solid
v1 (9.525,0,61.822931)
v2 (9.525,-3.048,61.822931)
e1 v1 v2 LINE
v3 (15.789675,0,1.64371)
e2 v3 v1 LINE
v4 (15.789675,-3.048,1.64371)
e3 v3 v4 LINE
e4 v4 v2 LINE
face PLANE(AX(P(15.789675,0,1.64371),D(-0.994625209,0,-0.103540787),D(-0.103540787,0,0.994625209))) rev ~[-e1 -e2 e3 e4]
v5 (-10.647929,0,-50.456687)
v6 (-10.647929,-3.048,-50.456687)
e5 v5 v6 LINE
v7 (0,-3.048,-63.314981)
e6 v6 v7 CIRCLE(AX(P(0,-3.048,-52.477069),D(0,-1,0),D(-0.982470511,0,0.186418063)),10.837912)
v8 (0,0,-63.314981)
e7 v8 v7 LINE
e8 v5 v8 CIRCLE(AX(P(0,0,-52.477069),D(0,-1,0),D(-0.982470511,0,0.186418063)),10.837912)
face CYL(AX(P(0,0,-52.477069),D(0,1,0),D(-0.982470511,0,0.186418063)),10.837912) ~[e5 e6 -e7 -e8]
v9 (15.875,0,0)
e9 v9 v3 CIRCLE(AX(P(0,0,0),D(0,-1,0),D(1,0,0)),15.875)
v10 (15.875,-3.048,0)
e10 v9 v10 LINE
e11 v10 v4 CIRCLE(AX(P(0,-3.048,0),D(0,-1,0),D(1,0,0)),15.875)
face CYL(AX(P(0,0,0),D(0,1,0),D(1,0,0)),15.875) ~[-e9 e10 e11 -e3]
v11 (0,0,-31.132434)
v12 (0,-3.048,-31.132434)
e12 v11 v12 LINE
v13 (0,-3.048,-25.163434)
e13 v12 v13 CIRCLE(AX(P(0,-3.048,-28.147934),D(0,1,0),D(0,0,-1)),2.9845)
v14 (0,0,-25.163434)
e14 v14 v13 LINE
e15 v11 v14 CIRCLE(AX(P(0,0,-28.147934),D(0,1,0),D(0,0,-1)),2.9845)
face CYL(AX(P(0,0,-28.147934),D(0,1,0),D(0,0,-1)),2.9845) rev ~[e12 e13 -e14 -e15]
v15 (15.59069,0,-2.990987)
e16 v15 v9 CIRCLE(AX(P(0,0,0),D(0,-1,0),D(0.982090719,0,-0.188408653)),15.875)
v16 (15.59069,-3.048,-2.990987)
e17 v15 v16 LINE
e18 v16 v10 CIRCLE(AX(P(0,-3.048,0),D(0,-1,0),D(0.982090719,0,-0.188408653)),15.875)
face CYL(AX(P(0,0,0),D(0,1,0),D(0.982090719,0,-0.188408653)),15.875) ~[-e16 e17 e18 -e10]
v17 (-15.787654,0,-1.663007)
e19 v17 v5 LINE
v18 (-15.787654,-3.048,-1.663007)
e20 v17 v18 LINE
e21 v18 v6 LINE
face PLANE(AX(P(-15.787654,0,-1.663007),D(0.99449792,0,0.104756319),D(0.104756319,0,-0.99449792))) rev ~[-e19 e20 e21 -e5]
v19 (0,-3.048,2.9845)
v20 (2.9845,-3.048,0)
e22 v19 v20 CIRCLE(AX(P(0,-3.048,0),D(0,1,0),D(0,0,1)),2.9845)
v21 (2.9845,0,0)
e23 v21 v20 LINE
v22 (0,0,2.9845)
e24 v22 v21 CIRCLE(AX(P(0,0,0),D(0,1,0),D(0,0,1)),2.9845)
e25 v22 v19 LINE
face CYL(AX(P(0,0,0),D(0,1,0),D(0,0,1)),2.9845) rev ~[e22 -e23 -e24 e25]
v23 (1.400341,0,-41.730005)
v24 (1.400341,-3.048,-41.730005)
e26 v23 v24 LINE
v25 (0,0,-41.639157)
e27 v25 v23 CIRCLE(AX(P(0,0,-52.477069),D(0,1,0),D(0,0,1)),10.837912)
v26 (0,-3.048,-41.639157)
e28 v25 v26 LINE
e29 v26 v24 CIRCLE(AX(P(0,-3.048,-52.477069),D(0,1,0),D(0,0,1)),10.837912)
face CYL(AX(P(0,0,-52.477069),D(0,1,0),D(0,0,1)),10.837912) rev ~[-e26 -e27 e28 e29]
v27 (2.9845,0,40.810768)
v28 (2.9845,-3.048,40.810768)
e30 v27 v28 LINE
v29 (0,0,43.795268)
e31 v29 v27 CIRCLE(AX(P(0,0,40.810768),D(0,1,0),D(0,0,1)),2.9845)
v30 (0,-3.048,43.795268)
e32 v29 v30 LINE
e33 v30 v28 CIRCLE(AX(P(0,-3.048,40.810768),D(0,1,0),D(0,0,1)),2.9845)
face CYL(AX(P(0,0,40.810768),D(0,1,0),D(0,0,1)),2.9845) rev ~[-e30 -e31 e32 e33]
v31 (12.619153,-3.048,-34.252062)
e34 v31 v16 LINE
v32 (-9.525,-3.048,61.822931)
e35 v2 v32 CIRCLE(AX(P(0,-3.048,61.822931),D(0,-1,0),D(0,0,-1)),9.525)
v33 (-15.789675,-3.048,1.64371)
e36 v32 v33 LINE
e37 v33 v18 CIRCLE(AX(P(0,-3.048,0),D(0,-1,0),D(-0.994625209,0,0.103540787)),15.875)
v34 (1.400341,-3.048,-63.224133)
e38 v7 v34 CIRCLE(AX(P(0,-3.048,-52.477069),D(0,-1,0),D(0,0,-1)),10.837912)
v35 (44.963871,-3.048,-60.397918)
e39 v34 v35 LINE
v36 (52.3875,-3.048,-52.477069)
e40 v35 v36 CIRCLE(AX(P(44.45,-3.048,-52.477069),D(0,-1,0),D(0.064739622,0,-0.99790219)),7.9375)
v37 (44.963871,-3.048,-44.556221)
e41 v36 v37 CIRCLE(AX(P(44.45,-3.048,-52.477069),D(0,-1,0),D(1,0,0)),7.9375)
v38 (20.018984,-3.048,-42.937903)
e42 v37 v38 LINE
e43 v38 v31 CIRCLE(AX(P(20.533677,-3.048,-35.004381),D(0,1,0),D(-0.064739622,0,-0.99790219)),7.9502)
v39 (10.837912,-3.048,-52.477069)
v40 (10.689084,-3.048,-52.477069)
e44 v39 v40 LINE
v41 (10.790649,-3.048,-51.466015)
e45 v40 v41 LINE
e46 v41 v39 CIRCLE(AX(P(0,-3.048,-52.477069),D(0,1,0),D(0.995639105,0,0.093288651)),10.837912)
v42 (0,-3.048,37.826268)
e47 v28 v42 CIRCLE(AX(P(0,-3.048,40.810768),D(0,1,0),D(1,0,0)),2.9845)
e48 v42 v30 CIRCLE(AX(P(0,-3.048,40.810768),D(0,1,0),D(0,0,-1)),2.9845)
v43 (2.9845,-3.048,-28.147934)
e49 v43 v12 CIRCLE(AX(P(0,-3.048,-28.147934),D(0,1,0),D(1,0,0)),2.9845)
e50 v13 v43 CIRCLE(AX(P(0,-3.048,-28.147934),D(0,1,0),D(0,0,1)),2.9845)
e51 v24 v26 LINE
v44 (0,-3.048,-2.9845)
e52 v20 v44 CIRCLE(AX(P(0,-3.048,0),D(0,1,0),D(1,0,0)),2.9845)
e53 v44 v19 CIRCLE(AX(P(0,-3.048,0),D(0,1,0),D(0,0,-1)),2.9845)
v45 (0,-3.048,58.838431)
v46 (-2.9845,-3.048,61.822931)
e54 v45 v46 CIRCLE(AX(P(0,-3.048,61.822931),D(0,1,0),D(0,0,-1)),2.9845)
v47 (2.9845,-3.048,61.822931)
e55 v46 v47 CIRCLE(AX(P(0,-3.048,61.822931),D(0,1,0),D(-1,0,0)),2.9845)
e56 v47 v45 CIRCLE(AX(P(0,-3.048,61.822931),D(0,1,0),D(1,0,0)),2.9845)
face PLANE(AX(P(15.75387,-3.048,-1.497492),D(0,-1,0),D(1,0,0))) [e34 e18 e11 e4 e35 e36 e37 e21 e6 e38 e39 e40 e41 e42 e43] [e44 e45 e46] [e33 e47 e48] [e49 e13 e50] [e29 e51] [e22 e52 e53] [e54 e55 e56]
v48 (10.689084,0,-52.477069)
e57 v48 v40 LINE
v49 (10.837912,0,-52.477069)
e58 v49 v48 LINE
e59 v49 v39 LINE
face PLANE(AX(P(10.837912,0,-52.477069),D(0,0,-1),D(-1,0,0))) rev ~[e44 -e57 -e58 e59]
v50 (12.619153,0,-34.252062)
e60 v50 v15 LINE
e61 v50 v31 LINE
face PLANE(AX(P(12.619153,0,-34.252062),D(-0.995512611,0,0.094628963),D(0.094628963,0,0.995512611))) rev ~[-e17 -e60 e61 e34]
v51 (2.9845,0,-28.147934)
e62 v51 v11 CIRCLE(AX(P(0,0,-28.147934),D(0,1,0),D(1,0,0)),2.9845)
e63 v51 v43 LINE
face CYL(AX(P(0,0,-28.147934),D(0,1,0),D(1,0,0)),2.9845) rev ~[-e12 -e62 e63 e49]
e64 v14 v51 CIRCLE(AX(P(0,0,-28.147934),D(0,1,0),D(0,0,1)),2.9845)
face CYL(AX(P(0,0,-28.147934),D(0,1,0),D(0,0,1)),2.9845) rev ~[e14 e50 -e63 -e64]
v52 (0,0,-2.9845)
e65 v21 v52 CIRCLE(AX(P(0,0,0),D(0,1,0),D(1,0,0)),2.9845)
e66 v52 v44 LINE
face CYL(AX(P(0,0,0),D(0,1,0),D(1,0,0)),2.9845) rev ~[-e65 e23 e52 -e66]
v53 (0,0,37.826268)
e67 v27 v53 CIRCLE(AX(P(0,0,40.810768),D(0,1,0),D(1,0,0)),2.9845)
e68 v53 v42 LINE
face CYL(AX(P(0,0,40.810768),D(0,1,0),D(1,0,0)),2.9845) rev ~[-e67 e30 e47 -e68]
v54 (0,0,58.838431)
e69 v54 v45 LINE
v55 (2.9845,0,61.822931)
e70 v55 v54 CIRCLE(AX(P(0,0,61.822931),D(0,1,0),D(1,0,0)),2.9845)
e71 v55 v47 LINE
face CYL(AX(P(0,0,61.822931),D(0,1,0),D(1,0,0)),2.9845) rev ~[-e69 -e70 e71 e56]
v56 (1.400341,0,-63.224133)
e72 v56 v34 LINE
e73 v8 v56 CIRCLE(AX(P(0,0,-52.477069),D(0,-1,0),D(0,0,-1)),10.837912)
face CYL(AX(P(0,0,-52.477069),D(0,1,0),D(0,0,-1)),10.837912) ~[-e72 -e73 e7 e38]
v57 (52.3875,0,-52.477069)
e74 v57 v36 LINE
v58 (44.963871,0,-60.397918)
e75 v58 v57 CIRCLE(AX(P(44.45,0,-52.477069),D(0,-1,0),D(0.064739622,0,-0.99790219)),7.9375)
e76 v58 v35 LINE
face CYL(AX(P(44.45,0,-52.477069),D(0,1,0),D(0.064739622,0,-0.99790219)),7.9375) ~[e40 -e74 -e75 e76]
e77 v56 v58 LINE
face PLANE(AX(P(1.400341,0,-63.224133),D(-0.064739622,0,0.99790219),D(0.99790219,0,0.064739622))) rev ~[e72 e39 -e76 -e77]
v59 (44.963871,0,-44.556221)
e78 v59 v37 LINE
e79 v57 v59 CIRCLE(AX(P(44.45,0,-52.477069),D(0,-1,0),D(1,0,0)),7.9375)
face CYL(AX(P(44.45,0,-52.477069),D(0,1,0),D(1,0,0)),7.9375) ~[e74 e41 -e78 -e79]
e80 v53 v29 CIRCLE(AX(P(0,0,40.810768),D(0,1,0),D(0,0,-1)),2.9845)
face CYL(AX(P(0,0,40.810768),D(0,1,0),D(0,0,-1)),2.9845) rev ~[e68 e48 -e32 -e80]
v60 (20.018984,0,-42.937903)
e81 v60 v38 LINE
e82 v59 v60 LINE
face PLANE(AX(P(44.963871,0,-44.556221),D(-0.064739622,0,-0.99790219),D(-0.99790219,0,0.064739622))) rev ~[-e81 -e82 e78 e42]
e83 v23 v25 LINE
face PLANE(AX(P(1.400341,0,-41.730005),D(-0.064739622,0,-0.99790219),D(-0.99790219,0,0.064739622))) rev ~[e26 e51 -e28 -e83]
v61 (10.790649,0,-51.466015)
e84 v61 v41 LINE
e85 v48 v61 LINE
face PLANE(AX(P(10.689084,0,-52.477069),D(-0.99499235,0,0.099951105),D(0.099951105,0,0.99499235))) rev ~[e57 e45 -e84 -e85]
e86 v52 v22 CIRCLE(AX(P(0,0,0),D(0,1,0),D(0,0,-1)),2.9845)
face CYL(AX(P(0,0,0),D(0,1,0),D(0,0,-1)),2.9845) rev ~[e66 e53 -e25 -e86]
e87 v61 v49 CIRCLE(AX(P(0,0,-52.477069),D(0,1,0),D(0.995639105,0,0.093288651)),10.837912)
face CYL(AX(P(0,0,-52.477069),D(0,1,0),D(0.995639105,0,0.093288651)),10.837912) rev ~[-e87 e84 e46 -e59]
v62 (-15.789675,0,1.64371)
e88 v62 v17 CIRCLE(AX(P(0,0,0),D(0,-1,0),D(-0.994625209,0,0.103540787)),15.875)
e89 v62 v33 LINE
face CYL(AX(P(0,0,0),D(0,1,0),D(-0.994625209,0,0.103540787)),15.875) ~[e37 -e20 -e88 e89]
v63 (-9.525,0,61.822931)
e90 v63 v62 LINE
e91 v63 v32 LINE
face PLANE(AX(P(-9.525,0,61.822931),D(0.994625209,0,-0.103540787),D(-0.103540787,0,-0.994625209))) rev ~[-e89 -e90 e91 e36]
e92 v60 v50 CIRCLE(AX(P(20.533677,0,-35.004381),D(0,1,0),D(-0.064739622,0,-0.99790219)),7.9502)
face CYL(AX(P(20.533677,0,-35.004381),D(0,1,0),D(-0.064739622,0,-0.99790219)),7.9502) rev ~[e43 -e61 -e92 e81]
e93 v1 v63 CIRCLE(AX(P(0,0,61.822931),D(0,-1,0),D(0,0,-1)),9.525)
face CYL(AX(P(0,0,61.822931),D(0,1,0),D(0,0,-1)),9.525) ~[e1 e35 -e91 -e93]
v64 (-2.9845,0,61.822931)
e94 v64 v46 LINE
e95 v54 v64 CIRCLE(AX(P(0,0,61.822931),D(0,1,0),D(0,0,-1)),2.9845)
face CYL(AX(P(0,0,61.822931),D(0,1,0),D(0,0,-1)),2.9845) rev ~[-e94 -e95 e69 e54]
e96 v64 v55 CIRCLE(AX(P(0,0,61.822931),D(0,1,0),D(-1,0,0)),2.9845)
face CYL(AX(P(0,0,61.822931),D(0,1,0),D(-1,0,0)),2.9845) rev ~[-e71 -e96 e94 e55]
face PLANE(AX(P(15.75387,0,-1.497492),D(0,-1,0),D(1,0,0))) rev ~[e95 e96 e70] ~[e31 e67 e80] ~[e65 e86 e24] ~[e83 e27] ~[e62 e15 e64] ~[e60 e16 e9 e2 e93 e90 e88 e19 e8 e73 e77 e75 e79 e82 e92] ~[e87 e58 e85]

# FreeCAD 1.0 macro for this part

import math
import FreeCAD as App
import Part
import Sketcher

V = App.Vector
Q = App.Units.Quantity

doc = App.newDocument("Part")
body = doc.addObject("PartDesign::Body", "Body")

# Sketch on XZ plane
sketch1 = body.newObject("Sketcher::SketchObject", "Sketch")
sketch1.AttachmentSupport = (doc.getObject("XZ_Plane"), [""])
sketch1.MapMode = "FlatFace"
sketch1.addGeometry([
    Part.ArcOfCircle(Part.Circle(V(0, 0, 0), V(0, 0, 1), 15.875), math.radians(174.056898), math.radians(186.013127)),  # 0
    Part.LineSegment(V(-15.787654, -1.663007, 0), V(-10.647929, -50.456687, 0)),  # 1
    Part.ArcOfCircle(Part.Circle(V(0, -52.477069, 0), V(0, 0, 1), 10.837912), math.radians(169.25618), math.radians(270)),  # 2
    Part.ArcOfCircle(Part.Circle(V(0, -52.477069, 0), V(0, 0, 1), 10.837912), math.radians(-90), math.radians(-82.576194)),  # 3
    Part.LineSegment(V(1.400341, -63.224133, 0), V(44.963871, -60.397918, 0)),  # 4
    Part.ArcOfCircle(Part.Circle(V(44.45, -52.477069, 0), V(0, 0, 1), 7.9375), math.radians(-86.288097), math.radians(0)),  # 5
    Part.ArcOfCircle(Part.Circle(V(44.45, -52.477069, 0), V(0, 0, 1), 7.9375), math.radians(0), math.radians(86.288097)),  # 6
    Part.LineSegment(V(44.963871, -44.556221, 0), V(20.018984, -42.937903, 0)),  # 7
    Part.ArcOfCircle(Part.Circle(V(20.533677, -35.004381, 0), V(0, 0, 1), 7.9502), math.radians(174.570035), math.radians(266.288097)),  # 8
    Part.LineSegment(V(12.619153, -34.252062, 0), V(15.59069, -2.990987, 0)),  # 9
    Part.ArcOfCircle(Part.Circle(V(0, 0, 0), V(0, 0, 1), 15.875), math.radians(-10.85993), math.radians(0)),  # 10
    Part.ArcOfCircle(Part.Circle(V(0, 0, 0), V(0, 0, 1), 15.875), math.radians(0), math.radians(5.943102)),  # 11
    Part.LineSegment(V(15.789675, 1.64371, 0), V(9.525, 61.822931, 0)),  # 12
    Part.ArcOfCircle(Part.Circle(V(0, 61.822931, 0), V(0, 0, 1), 9.525), math.radians(0), math.radians(180)),  # 13
    Part.LineSegment(V(-9.525, 61.822931, 0), V(-15.789675, 1.64371, 0)),  # 14
    Part.ArcOfCircle(Part.Circle(V(0, -28.147934, 0), V(0, 0, 1), 2.9845), math.radians(-90), math.radians(0)),  # 15
    Part.ArcOfCircle(Part.Circle(V(0, -28.147934, 0), V(0, 0, 1), 2.9845), math.radians(90), math.radians(270)),  # 16
    Part.ArcOfCircle(Part.Circle(V(0, -28.147934, 0), V(0, 0, 1), 2.9845), math.radians(0), math.radians(90)),  # 17
    Part.LineSegment(V(1.400341, -41.730005, 0), V(0, -41.639157, 0)),  # 18
    Part.ArcOfCircle(Part.Circle(V(0, -52.477069, 0), V(0, 0, 1), 10.837912), math.radians(82.576194), math.radians(90)),  # 19
    Part.ArcOfCircle(Part.Circle(V(0, 0, 0), V(0, 0, 1), 2.9845), math.radians(-90), math.radians(0)),  # 20
    Part.ArcOfCircle(Part.Circle(V(0, 0, 0), V(0, 0, 1), 2.9845), math.radians(90), math.radians(270)),  # 21
    Part.ArcOfCircle(Part.Circle(V(0, 0, 0), V(0, 0, 1), 2.9845), math.radians(0), math.radians(90)),  # 22
    Part.LineSegment(V(10.837912, -52.477069, 0), V(10.689084, -52.477069, 0)),  # 23
    Part.LineSegment(V(10.689084, -52.477069, 0), V(10.790649, -51.466015, 0)),  # 24
    Part.ArcOfCircle(Part.Circle(V(0, -52.477069, 0), V(0, 0, 1), 10.837912), math.radians(0), math.radians(5.352829)),  # 25
    Part.ArcOfCircle(Part.Circle(V(0, 40.810768, 0), V(0, 0, 1), 2.9845), math.radians(90), math.radians(270)),  # 26
    Part.ArcOfCircle(Part.Circle(V(0, 40.810768, 0), V(0, 0, 1), 2.9845), math.radians(0), math.radians(90)),  # 27
    Part.ArcOfCircle(Part.Circle(V(0, 40.810768, 0), V(0, 0, 1), 2.9845), math.radians(-90), math.radians(0)),  # 28
    Part.ArcOfCircle(Part.Circle(V(0, 61.822931, 0), V(0, 0, 1), 2.9845), math.radians(0), math.radians(180)),  # 29
    Part.ArcOfCircle(Part.Circle(V(0, 61.822931, 0), V(0, 0, 1), 2.9845), math.radians(-90), math.radians(0)),  # 30
    Part.ArcOfCircle(Part.Circle(V(0, 61.822931, 0), V(0, 0, 1), 2.9845), math.radians(180), math.radians(270)),  # 31
], False)
sketch1.addConstraint([
    Sketcher.Constraint("Tangent", 0, 2, 1, 1),
    Sketcher.Constraint("Coincident", 1, 2, 2, 1),
    Sketcher.Constraint("Tangent", 2, 2, 3, 1),
    Sketcher.Constraint("Coincident", 3, 2, 4, 1),
    Sketcher.Constraint("Tangent", 4, 2, 5, 1),
    Sketcher.Constraint("Tangent", 5, 2, 6, 1),
    Sketcher.Constraint("Tangent", 6, 2, 7, 1),
    Sketcher.Constraint("Tangent", 7, 2, 8, 2),
    Sketcher.Constraint("Tangent", 8, 1, 9, 1),
    Sketcher.Constraint("Coincident", 9, 2, 10, 1),
    Sketcher.Constraint("Tangent", 10, 2, 11, 1),
    Sketcher.Constraint("Tangent", 11, 2, 12, 1),
    Sketcher.Constraint("Coincident", 12, 2, 13, 1),
    Sketcher.Constraint("Coincident", 13, 2, 14, 1),
    Sketcher.Constraint("Tangent", 14, 2, 0, 1),
    Sketcher.Constraint("Tangent", 15, 1, 16, 2),
    Sketcher.Constraint("Tangent", 16, 1, 17, 2),
    Sketcher.Constraint("Tangent", 17, 1, 15, 2),
    Sketcher.Constraint("Coincident", 18, 1, 19, 1),
    Sketcher.Constraint("Coincident", 19, 2, 18, 2),
    Sketcher.Constraint("Tangent", 20, 1, 21, 2),
    Sketcher.Constraint("Tangent", 21, 1, 22, 2),
    Sketcher.Constraint("Tangent", 22, 1, 20, 2),
    Sketcher.Constraint("Coincident", 23, 2, 24, 1),
    Sketcher.Constraint("Coincident", 24, 2, 25, 2),
    Sketcher.Constraint("Coincident", 25, 1, 23, 1),
    Sketcher.Constraint("Tangent", 26, 1, 27, 2),
    Sketcher.Constraint("Tangent", 27, 1, 28, 2),
    Sketcher.Constraint("Tangent", 28, 1, 26, 2),
    Sketcher.Constraint("Tangent", 29, 1, 30, 2),
    Sketcher.Constraint("Tangent", 30, 1, 31, 2),
    Sketcher.Constraint("Tangent", 31, 1, 29, 2),
    Sketcher.Constraint("Horizontal", 23),
    Sketcher.Constraint("Coincident", 0, 3, -1, 1),
    Sketcher.Constraint("Coincident", 10, 3, -1, 1),
    Sketcher.Constraint("Coincident", 20, 3, -1, 1),
    Sketcher.Constraint("Coincident", 19, 3, 2, 3),
    Sketcher.Constraint("Coincident", 25, 3, 2, 3),
    Sketcher.Constraint("Coincident", 29, 3, 13, 3),
    Sketcher.Constraint("Equal", 2, 3),
    Sketcher.Constraint("Equal", 5, 6),
    Sketcher.Constraint("Equal", 0, 10),
    Sketcher.Constraint("Equal", 10, 11),
    Sketcher.Constraint("Equal", 3, 19),
    Sketcher.Constraint("Equal", 17, 20),
    Sketcher.Constraint("Equal", 19, 25),
    Sketcher.Constraint("Equal", 22, 26),
    Sketcher.Constraint("Equal", 28, 29),
    Sketcher.Constraint("Symmetric", 12, 2, 13, 2, -2),
    Sketcher.Constraint("PointOnObject", 2, 3, -2),
    Sketcher.Constraint("PointOnObject", 15, 3, -2),
    Sketcher.Constraint("PointOnObject", 26, 3, -2),
    Sketcher.Constraint("PointOnObject", 2, 2, -2),
    Sketcher.Constraint("PointOnObject", 10, 2, -1),
    Sketcher.Constraint("PointOnObject", 15, 1, -2),
    Sketcher.Constraint("PointOnObject", 16, 1, -2),
    Sketcher.Constraint("PointOnObject", 19, 2, -2),
    Sketcher.Constraint("PointOnObject", 20, 1, -2),
    Sketcher.Constraint("PointOnObject", 21, 1, -2),
    Sketcher.Constraint("PointOnObject", 22, 1, -1),
    Sketcher.Constraint("PointOnObject", 26, 1, -2),
    Sketcher.Constraint("PointOnObject", 28, 1, -2),
    Sketcher.Constraint("PointOnObject", 30, 1, -2),
    Sketcher.Constraint("Parallel", 7, 18),
    Sketcher.Constraint("Horizontal", 3, 3, 5, 3),
    Sketcher.Constraint("Horizontal", 25, 3, 5, 2),
    Sketcher.Constraint("Horizontal", 31, 3, 12, 2),
    Sketcher.Constraint("Horizontal", 16, 3, 17, 1),
    Sketcher.Constraint("Horizontal", 5, 2, 23, 2),
    Sketcher.Constraint("Horizontal", 28, 3, 27, 1),
    Sketcher.Constraint("Horizontal", 13, 2, 29, 1),
    Sketcher.Constraint("Horizontal", 29, 1, 31, 1),
    Sketcher.Constraint("Vertical", 4, 2, 6, 2),
    Sketcher.Constraint("Vertical", 3, 2, 18, 1),
    Sketcher.Constraint("Radius", 0, Q("0.625 in")),
    Sketcher.Constraint("Radius", 5, Q("0.3125 in")),
    Sketcher.Constraint("Radius", 8, Q("0.313 in")),
    Sketcher.Constraint("Radius", 13, Q("0.375 in")),
    Sketcher.Constraint("Radius", 15, Q("0.1175 in")),
    Sketcher.Constraint("DistanceY", 2, 3, 13, 3, Q("4.5 in")),
    Sketcher.Constraint("DistanceX", -1, 1, 5, 3, Q("1.75 in")),
    Sketcher.Constraint("Radius", 2, Q("10.837912 mm")),
    Sketcher.Constraint("DistanceX", 23, 2, 7, 2, Q("9.3299 mm")),
    Sketcher.Constraint("Distance", 12, Q("60.504419 mm")),
    Sketcher.Constraint("DistanceX", 23, 2, 23, 1, Q("0.148828 mm")),
    Sketcher.Constraint("DistanceX", 1, 2, -1, 1, Q("10.647929 mm")),
    Sketcher.Constraint("DistanceY", 8, 1, -1, 1, Q("34.252062 mm")),
    Sketcher.Constraint("DistanceX", -1, 1, 24, 2, Q("10.790649 mm")),
    Sketcher.Constraint("DistanceY", 18, 1, 15, 1, Q("10.597571 mm")),
    Sketcher.Constraint("DistanceY", -1, 1, 26, 3, Q("40.810768 mm")),
])
pad1 = body.newObject("PartDesign::Pad", "Pad")
pad1.Profile = sketch1
pad1.Length = Q("0.12 in")

doc.recompute()
